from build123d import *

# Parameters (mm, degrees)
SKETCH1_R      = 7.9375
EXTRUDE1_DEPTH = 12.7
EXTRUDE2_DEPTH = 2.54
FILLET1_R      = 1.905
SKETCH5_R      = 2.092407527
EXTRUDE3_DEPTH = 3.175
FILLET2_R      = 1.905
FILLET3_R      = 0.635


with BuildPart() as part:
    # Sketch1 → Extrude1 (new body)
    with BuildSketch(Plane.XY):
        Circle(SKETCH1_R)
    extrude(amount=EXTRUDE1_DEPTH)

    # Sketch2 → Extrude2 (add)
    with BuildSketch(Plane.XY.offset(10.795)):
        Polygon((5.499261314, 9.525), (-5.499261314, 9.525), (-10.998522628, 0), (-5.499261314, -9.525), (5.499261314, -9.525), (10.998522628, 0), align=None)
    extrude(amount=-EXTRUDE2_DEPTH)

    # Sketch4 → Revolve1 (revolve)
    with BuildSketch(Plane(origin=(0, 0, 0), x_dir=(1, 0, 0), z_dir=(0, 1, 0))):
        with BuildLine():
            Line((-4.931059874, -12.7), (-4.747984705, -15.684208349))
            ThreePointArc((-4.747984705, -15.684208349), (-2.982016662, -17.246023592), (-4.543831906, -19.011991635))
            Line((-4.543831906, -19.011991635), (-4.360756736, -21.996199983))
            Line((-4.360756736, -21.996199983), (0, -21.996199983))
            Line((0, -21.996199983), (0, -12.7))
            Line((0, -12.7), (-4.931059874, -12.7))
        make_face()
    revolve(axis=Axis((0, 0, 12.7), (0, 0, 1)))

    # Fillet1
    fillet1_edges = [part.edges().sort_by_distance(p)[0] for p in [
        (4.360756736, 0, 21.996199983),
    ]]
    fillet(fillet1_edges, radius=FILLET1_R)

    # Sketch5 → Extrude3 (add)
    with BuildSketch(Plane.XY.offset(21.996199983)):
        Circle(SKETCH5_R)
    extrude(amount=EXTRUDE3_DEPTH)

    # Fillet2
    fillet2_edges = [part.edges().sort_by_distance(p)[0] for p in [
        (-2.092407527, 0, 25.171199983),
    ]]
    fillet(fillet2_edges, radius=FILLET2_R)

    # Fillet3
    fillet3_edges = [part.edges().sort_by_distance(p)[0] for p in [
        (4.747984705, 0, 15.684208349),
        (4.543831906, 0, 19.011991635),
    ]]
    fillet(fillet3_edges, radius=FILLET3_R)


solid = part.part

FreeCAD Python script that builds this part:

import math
import FreeCAD as App
import Part
import Sketcher
Q = App.Units.Quantity


def edges_at(feature, points):
    """Names of the edges that pass closest to the given points."""
    edges = feature.Shape.Edges
    near = lambda p: min(range(len(edges)), key=lambda i: edges[i].distToShape(Part.Vertex(*p))[0])
    return sorted({f"Edge{near(p) + 1}" for p in points})


def add_polygon(sketch, points):
    """Adds a closed chain of lines whose ends are joined by coincident constraints."""
    first, n = sketch.GeometryCount, len(points)
    for a, b in zip(points, points[1:] + points[:1]):
        sketch.addGeometry(Part.LineSegment(App.Vector(*a, 0), App.Vector(*b, 0)), False)
    for i in range(n):
        sketch.addConstraint(Sketcher.Constraint("Coincident", first + i, 2, first + (i + 1) % n, 1))

doc = App.newDocument("Part")
params = doc.addObject("Spreadsheet::Sheet", "Params")
for row, (alias, value) in enumerate([
    ("sketch1_diameter", "0.625 in"),
    ("pad1_length", "0.5 in"),
    ("pad2_length", "0.1 in"),
    ("revolution_angle", "360 deg"),
    ("fillet_radius", "0.075 in"),
    ("pad3_length", "0.125 in"),
    ("fillet2_radius", "0.075 in"),
    ("fillet3_radius", "0.025 in"),
], start=1):
    params.set(f"A{row}", alias)
    params.set(f"B{row}", "=" + value)
    params.setAlias(f"B{row}", alias)

body = doc.addObject("PartDesign::Body", "Body")

sketch1 = doc.addObject("Sketcher::SketchObject", "Sketch")
body.addObject(sketch1)
sketch1.AttachmentSupport = (doc.XY_Plane, [""])
sketch1.MapMode = "FlatFace"
sketch1.addGeometry(Part.Circle(App.Vector(0, 0, 0), App.Vector(0, 0, 1), 8), False)
sketch1.addConstraint(Sketcher.Constraint("Coincident", 0, 3, -1, 1))
sketch1.addConstraint(Sketcher.Constraint("Diameter", 0, Q("0.625 in")))
sketch1.setExpression("Constraints[1]", "Params.sketch1_diameter")
pad1 = doc.addObject("PartDesign::Pad", "Pad")
body.addObject(pad1)
pad1.Profile = sketch1
pad1.setExpression("Length", "Params.pad1_length")

sketch2 = doc.addObject("Sketcher::SketchObject", "Sketch001")
body.addObject(sketch2)
sketch2.AttachmentSupport = (doc.XY_Plane, [""])
sketch2.MapMode = "FlatFace"
sketch2.AttachmentOffset = App.Placement(App.Vector(0, 0, 0.425 * 25.4), App.Rotation())
add_polygon(sketch2, [(5, 10), (-5, 10), (-11, 0), (-5, -10), (5, -10), (11, 0)])
sketch2.addConstraint(Sketcher.Constraint("Horizontal", 0))
sketch2.addConstraint(Sketcher.Constraint("Horizontal", 3))
sketch2.addConstraint(Sketcher.Constraint("Symmetric", 0, 2, 3, 2, -1, 1))
sketch2.addConstraint(Sketcher.Constraint("Symmetric", 1, 2, 4, 2, -1, 1))
sketch2.addConstraint(Sketcher.Constraint("PointOnObject", 1, 2, -1))
sketch2.addConstraint(Sketcher.Constraint("Parallel", 2, 5))
sketch2.addConstraint(Sketcher.Constraint("Vertical", 0, 2, 2, 2))
sketch2.addConstraint(Sketcher.Constraint("Angle", 1, Q("-120 deg")))
sketch2.addConstraint(Sketcher.Constraint("DistanceY", 2, 2, 0, 2, Q("0.75 in")))
sketch2.addConstraint(Sketcher.Constraint("DistanceX", 0, 2, 0, 1, Q("10.998523 mm")))
pad2 = doc.addObject("PartDesign::Pad", "Pad001")
body.addObject(pad2)
pad2.Profile = sketch2
pad2.setExpression("Length", "Params.pad2_length")
pad2.Reversed = True

sketch3 = doc.addObject("Sketcher::SketchObject", "Sketch002")
body.addObject(sketch3)
sketch3.AttachmentSupport = (doc.XZ_Plane, [""])
sketch3.MapMode = "FlatFace"
sketch3.addGeometry(Part.LineSegment(App.Vector(-4.9, 12.7, 0), App.Vector(-4.7, 15.7, 0)), False)
sketch3.addGeometry(Part.ArcOfCircle(Part.Circle(App.Vector(-4.6, 17.3, 0), App.Vector(0, 0, 1), 1.7), math.radians(-94), math.radians(86)), False)
sketch3.addGeometry(Part.LineSegment(App.Vector(-4.5, 19, 0), App.Vector(-4.4, 22, 0)), False)
sketch3.addGeometry(Part.LineSegment(App.Vector(-4.4, 22, 0), App.Vector(0, 22, 0)), False)
sketch3.addGeometry(Part.LineSegment(App.Vector(0, 22, 0), App.Vector(0, 12.7, 0)), False)
sketch3.addGeometry(Part.LineSegment(App.Vector(0, 12.7, 0), App.Vector(-4.9, 12.7, 0)), False)
sketch3.addConstraint(Sketcher.Constraint("Coincident", 0, 2, 1, 1))
sketch3.addConstraint(Sketcher.Constraint("Coincident", 1, 2, 2, 1))
sketch3.addConstraint(Sketcher.Constraint("Coincident", 2, 2, 3, 1))
sketch3.addConstraint(Sketcher.Constraint("Coincident", 3, 2, 4, 1))
sketch3.addConstraint(Sketcher.Constraint("Coincident", 4, 2, 5, 1))
sketch3.addConstraint(Sketcher.Constraint("Coincident", 5, 2, 0, 1))
sketch3.addConstraint(Sketcher.Constraint("Horizontal", 3))
sketch3.addConstraint(Sketcher.Constraint("Vertical", 4))
sketch3.addConstraint(Sketcher.Constraint("Horizontal", 5))
sketch3.addConstraint(Sketcher.Constraint("PointOnObject", 3, 2, -2))
sketch3.addConstraint(Sketcher.Constraint("Parallel", 0, 2))
sketch3.addConstraint(Sketcher.Constraint("Equal", 0, 2))
sketch3.addConstraint(Sketcher.Constraint("DistanceY", -1, 1, 4, 2, Q("0.5 in")))
sketch3.addConstraint(Sketcher.Constraint("Radius", 1, Q("1.66702 mm")))
sketch3.addConstraint(Sketcher.Constraint("DistanceY", 4, 2, 4, 1, Q("9.2962 mm")))
sketch3.addConstraint(Sketcher.Constraint("DistanceX", 5, 2, 5, 1, Q("4.93106 mm")))
sketch3.addConstraint(Sketcher.Constraint("DistanceY", -1, 1, 1, 3, Q("17.3481 mm")))
sketch3.addConstraint(Sketcher.Constraint("Distance", 0, Q("2.989819 mm")))
sketch3.addConstraint(Sketcher.Constraint("DistanceY", -1, 1, 0, 2, Q("15.684208 mm")))
revolution = doc.addObject("PartDesign::Revolution", "Revolution")
body.addObject(revolution)
revolution.Profile = sketch3
revolution.ReferenceAxis = (sketch3, ["V_Axis"])
revolution.setExpression("Angle", "Params.revolution_angle")
doc.recompute()

fillet = doc.addObject("PartDesign::Fillet", "Fillet")
body.addObject(fillet)
fillet.Base = (revolution, edges_at(revolution, [(4.361, 0, 21.996)]))
fillet.setExpression("Radius", "Params.fillet_radius")

sketch4 = doc.addObject("Sketcher::SketchObject", "Sketch003")
body.addObject(sketch4)
sketch4.AttachmentSupport = (doc.XY_Plane, [""])
sketch4.MapMode = "FlatFace"
sketch4.AttachmentOffset = App.Placement(App.Vector(0, 0, 21.9962), App.Rotation())
sketch4.addGeometry(Part.Circle(App.Vector(0, 0, 0), App.Vector(0, 0, 1), 2.1), False)
sketch4.addConstraint(Sketcher.Constraint("Coincident", 0, 3, -1, 1))
sketch4.addConstraint(Sketcher.Constraint("Diameter", 0, Q("4.184815 mm")))
pad3 = doc.addObject("PartDesign::Pad", "Pad002")
body.addObject(pad3)
pad3.Profile = sketch4
pad3.setExpression("Length", "Params.pad3_length")
doc.recompute()

fillet2 = doc.addObject("PartDesign::Fillet", "Fillet001")
body.addObject(fillet2)
fillet2.Base = (pad3, edges_at(pad3, [(-2.092, 0, 25.171)]))
fillet2.setExpression("Radius", "Params.fillet2_radius")
doc.recompute()

fillet3 = doc.addObject("PartDesign::Fillet", "Fillet002")
body.addObject(fillet3)
fillet3.Base = (fillet2, edges_at(fillet2, [(4.748, 0, 15.684), (4.544, 0, 19.012)]))
fillet3.setExpression("Radius", "Params.fillet3_radius")

doc.recompute()
